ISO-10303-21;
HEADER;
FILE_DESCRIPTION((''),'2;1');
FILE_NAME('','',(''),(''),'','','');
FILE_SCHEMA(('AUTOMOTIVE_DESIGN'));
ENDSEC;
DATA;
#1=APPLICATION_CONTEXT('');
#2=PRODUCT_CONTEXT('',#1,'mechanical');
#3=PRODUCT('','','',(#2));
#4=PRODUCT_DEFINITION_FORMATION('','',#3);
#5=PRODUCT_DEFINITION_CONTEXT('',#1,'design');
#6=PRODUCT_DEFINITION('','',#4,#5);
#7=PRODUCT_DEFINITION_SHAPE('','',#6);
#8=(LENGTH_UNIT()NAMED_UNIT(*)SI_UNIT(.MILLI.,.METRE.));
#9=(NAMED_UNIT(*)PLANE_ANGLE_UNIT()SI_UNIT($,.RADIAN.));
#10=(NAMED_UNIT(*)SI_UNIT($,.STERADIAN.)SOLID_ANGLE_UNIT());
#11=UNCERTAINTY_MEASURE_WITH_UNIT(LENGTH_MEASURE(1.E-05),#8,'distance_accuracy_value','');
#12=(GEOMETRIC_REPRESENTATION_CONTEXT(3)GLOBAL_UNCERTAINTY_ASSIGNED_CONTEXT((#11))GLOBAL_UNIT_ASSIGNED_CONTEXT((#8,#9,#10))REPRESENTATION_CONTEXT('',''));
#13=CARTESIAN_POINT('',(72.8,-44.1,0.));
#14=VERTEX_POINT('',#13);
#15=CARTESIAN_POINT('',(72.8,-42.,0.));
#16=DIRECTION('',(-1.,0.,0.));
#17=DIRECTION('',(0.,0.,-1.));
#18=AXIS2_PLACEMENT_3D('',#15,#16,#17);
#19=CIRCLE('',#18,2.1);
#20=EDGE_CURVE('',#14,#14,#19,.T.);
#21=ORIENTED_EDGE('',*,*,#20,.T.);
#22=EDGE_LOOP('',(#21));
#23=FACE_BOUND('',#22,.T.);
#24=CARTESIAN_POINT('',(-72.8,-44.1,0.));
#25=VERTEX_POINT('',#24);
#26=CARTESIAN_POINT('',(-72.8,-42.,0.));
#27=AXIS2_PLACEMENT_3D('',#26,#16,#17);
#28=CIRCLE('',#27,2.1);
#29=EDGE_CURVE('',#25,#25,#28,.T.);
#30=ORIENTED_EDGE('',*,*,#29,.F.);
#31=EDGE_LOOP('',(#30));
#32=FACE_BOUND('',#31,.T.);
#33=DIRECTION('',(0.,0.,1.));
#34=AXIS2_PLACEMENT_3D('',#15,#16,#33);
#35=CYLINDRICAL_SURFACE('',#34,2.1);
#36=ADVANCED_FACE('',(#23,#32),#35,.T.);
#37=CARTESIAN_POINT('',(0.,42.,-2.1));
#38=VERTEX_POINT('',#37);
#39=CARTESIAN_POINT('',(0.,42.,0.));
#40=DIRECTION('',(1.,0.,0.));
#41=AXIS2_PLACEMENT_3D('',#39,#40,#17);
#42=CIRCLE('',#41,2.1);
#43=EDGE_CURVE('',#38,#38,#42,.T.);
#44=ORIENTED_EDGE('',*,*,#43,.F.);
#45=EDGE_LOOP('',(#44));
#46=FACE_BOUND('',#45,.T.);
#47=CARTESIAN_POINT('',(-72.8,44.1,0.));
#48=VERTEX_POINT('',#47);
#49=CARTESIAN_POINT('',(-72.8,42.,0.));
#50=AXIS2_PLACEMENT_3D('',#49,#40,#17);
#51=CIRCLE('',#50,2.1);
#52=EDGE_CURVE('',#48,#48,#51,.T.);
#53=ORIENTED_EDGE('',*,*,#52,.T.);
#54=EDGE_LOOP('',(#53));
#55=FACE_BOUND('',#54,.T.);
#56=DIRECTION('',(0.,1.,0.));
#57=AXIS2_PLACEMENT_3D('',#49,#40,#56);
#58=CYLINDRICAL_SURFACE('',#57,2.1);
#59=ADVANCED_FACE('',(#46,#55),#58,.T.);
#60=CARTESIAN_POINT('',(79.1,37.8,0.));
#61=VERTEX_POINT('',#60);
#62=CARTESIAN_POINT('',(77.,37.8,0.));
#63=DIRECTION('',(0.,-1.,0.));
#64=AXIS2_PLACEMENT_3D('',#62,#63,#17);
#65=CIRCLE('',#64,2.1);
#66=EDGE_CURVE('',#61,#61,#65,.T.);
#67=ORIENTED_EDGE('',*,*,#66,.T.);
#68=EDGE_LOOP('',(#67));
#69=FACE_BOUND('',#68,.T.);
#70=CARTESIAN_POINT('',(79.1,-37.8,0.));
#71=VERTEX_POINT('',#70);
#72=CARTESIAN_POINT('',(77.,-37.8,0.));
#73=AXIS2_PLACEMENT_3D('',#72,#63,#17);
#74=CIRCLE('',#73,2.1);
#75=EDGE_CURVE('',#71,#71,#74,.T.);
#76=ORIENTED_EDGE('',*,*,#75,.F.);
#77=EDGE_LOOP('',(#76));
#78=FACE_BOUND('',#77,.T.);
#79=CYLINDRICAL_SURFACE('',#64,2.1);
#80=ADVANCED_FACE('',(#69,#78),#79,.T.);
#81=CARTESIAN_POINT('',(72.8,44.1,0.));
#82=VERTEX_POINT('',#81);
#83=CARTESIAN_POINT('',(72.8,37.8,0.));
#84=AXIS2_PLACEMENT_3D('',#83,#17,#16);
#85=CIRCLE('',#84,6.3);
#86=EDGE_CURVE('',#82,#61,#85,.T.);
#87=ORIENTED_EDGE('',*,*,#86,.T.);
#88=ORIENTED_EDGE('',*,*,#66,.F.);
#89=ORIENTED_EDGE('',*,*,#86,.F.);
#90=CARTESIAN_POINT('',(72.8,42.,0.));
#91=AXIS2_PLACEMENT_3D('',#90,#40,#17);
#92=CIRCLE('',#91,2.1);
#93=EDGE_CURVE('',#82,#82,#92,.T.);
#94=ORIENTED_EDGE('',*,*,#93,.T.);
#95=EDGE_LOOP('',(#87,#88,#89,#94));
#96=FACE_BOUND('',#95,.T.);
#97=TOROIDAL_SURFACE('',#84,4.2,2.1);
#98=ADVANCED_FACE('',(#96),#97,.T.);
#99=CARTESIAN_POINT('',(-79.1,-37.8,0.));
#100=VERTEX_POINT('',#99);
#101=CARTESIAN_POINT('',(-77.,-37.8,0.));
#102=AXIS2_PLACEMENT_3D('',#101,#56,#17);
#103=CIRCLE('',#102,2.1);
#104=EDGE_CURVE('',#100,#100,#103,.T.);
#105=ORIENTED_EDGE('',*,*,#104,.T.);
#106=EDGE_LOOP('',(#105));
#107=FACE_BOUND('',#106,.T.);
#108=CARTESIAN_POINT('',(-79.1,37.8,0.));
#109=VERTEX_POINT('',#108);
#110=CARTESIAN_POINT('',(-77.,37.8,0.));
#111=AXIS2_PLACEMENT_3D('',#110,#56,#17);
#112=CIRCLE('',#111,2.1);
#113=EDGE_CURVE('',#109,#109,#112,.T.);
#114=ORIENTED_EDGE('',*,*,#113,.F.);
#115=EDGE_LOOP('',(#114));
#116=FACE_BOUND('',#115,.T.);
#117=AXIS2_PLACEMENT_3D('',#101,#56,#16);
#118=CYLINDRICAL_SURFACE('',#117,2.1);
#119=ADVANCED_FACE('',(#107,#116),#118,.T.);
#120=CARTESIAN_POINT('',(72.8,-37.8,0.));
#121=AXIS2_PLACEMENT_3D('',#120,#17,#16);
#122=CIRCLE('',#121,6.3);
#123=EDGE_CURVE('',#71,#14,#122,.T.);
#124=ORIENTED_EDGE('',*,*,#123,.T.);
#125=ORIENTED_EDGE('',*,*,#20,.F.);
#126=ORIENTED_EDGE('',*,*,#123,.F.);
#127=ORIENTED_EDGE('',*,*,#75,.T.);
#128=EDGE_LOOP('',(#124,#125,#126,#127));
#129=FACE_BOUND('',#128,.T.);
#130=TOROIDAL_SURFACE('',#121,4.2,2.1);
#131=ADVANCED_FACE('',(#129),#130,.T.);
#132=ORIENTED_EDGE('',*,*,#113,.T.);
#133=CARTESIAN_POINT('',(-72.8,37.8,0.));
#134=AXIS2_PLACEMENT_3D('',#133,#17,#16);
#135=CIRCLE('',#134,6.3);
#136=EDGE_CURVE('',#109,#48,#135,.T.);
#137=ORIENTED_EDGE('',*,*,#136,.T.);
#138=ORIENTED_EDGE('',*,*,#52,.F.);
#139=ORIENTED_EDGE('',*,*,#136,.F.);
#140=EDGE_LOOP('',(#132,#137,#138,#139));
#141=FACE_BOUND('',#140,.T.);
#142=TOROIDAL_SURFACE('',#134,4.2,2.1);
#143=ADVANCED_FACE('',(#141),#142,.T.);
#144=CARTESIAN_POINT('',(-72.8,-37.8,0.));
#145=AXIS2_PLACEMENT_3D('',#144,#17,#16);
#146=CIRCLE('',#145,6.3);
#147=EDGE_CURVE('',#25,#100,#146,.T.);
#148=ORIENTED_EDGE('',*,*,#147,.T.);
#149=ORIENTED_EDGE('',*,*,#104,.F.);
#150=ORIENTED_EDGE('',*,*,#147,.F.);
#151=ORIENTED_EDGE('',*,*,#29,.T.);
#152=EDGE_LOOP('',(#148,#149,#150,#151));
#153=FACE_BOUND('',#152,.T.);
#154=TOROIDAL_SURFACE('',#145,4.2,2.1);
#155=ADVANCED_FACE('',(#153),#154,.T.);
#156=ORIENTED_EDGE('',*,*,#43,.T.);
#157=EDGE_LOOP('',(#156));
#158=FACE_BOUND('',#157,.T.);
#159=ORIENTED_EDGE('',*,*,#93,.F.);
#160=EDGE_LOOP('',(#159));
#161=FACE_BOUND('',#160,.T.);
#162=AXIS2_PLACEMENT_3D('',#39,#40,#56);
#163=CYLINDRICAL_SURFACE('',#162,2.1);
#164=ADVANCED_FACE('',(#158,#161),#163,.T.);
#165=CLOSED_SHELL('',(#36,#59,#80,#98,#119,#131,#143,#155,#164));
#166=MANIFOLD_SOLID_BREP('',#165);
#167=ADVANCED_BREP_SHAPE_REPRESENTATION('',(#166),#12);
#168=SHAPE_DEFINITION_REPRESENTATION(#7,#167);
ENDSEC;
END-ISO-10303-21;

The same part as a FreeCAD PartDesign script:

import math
import FreeCAD as App
import Part
import Sketcher

doc = App.newDocument("Part")
params = doc.addObject("Spreadsheet::Sheet", "Params")
for row, (alias, value) in enumerate([
    ("sketch1_diameter", "4.2 mm"),
    ("sketch2_radius", "4.2 mm"),
    ("sketch2_width", "145.6 mm"),
    ("sketch2_height", "75.6 mm"),
], start=1):
    params.set(f"A{row}", alias)
    params.set(f"B{row}", "=" + value)
    params.setAlias(f"B{row}", alias)

body = doc.addObject("PartDesign::Body", "Body")

sketch1 = body.newObject("Sketcher::SketchObject", "Sketch")
sketch1.AttachmentSupport = (doc.getObject("YZ_Plane"), [""])
sketch1.MapMode = "FlatFace"
sketch1.addGeometry(Part.Circle(App.Vector(42, 0, 0), App.Vector(0, 0, 1), 2.1), False)
sketch1.addConstraint(Sketcher.Constraint("PointOnObject", 0, 3, -1))
sketch1.addConstraint(Sketcher.Constraint("Diameter", 0, 4.2))
sketch1.addConstraint(Sketcher.Constraint("DistanceX", -1, 1, 0, 3, 42.0))
sketch1.setExpression("Constraints[1]", "Params.sketch1_diameter")

sketch2 = body.newObject("Sketcher::SketchObject", "Sketch001")
sketch2.AttachmentSupport = (doc.getObject("XY_Plane"), [""])
sketch2.MapMode = "FlatFace"
sketch2.addGeometry(Part.LineSegment(App.Vector(72.8, -42, 0), App.Vector(-72.8, -42, 0)), False)
sketch2.addGeometry(Part.ArcOfCircle(Part.Circle(App.Vector(-72.8, -37.8, 0), App.Vector(0, 0, 1), 4.2), math.radians(180), math.radians(270)), False)
sketch2.addGeometry(Part.LineSegment(App.Vector(-77, -37.8, 0), App.Vector(-77, 37.8, 0)), False)
sketch2.addGeometry(Part.ArcOfCircle(Part.Circle(App.Vector(-72.8, 37.8, 0), App.Vector(0, 0, 1), 4.2), math.radians(90), math.radians(180)), False)
sketch2.addGeometry(Part.LineSegment(App.Vector(-72.8, 42, 0), App.Vector(72.8, 42, 0)), False)
sketch2.addGeometry(Part.ArcOfCircle(Part.Circle(App.Vector(72.8, 37.8, 0), App.Vector(0, 0, 1), 4.2), math.radians(0), math.radians(90)), False)
sketch2.addGeometry(Part.LineSegment(App.Vector(77, 37.8, 0), App.Vector(77, -37.8, 0)), False)
sketch2.addGeometry(Part.ArcOfCircle(Part.Circle(App.Vector(72.8, -37.8, 0), App.Vector(0, 0, 1), 4.2), math.radians(-90), math.radians(0)), False)
sketch2.addConstraint(Sketcher.Constraint("Tangent", 0, 2, 1, 2))
sketch2.addConstraint(Sketcher.Constraint("Tangent", 1, 1, 2, 1))
sketch2.addConstraint(Sketcher.Constraint("Tangent", 2, 2, 3, 2))
sketch2.addConstraint(Sketcher.Constraint("Tangent", 3, 1, 4, 1))
sketch2.addConstraint(Sketcher.Constraint("Tangent", 4, 2, 5, 2))
sketch2.addConstraint(Sketcher.Constraint("Tangent", 5, 1, 6, 1))
sketch2.addConstraint(Sketcher.Constraint("Tangent", 6, 2, 7, 2))
sketch2.addConstraint(Sketcher.Constraint("Tangent", 7, 1, 0, 1))
sketch2.addConstraint(Sketcher.Constraint("Horizontal", 0))
sketch2.addConstraint(Sketcher.Constraint("Vertical", 2))
sketch2.addConstraint(Sketcher.Constraint("Horizontal", 4))
sketch2.addConstraint(Sketcher.Constraint("Vertical", 6))
sketch2.addConstraint(Sketcher.Constraint("Equal", 1, 3))
sketch2.addConstraint(Sketcher.Constraint("Equal", 3, 5))
sketch2.addConstraint(Sketcher.Constraint("Equal", 5, 7))
sketch2.addConstraint(Sketcher.Constraint("Symmetric", 1, 3, 5, 3, -1, 1))
sketch2.addConstraint(Sketcher.Constraint("Radius", 1, 4.2))
sketch2.addConstraint(Sketcher.Constraint("DistanceX", 0, 2, 0, 1, 145.6))
sketch2.addConstraint(Sketcher.Constraint("DistanceY", 2, 1, 2, 2, 75.6))
sketch2.setExpression("Constraints[16]", "Params.sketch2_radius")
sketch2.setExpression("Constraints[17]", "Params.sketch2_width")
sketch2.setExpression("Constraints[18]", "Params.sketch2_height")
doc.recompute()

additivepipe = body.newObject("PartDesign::AdditivePipe", "AdditivePipe")
additivepipe.Profile = sketch1
additivepipe.Spine = (sketch2, ["Edge1", "Edge2", "Edge3", "Edge4", "Edge5", "Edge6", "Edge7", "Edge8"])

doc.recompute()
